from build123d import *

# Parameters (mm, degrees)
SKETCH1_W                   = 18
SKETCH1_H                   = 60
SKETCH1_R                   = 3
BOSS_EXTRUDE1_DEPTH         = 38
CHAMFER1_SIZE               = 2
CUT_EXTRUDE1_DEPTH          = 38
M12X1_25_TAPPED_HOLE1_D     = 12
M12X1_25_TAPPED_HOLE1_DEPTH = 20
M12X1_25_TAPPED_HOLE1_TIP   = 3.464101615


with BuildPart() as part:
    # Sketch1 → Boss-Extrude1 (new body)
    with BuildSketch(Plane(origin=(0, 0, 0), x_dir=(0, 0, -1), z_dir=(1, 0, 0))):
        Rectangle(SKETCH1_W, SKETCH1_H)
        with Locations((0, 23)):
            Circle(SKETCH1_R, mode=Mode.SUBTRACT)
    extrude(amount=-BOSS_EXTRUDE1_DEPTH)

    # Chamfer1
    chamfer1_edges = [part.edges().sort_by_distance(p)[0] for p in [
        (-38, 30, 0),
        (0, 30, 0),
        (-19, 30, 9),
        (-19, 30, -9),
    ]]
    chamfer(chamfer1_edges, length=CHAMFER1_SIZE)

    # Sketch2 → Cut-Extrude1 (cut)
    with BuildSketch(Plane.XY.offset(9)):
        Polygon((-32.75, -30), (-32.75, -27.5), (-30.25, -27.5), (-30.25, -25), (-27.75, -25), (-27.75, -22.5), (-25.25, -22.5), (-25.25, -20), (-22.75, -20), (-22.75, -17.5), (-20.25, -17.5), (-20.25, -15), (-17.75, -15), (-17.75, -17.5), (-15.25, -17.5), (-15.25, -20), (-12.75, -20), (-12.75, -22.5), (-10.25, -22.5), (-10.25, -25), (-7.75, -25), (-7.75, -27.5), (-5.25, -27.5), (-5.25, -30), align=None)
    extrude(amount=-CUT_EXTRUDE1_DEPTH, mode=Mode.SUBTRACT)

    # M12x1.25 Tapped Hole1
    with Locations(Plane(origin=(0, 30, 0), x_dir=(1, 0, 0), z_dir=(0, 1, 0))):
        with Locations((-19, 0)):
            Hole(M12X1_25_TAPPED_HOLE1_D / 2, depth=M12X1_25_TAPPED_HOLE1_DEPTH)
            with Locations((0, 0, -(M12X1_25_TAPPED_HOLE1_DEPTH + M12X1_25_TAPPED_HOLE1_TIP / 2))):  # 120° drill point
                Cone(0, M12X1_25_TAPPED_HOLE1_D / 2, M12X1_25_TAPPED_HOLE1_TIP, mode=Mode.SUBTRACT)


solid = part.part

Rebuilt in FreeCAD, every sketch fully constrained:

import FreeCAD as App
import Part
import Sketcher
from FreeCAD import Vector


def edges_at(feature, points):
    """Names of the edges that pass closest to the given points."""
    edges = feature.Shape.Edges
    near = lambda p: min(range(len(edges)), key=lambda i: edges[i].distToShape(Part.Vertex(*p))[0])
    return sorted({f"Edge{near(p) + 1}" for p in points})

doc = App.newDocument("Part")
body = doc.addObject("PartDesign::Body", "Body")

# Sketch on YZ plane
sketch1 = body.newObject("Sketcher::SketchObject", "Sketch")
sketch1.AttachmentSupport = (doc.getObject("YZ_Plane"), [""])
sketch1.MapMode = "FlatFace"
sketch1.addGeometry([
    Part.LineSegment(Vector(30, 9, 0), Vector(-30, 9, 0)),  # 0
    Part.LineSegment(Vector(-30, 9, 0), Vector(-30, -9, 0)),  # 1
    Part.LineSegment(Vector(-30, -9, 0), Vector(30, -9, 0)),  # 2
    Part.LineSegment(Vector(30, -9, 0), Vector(30, 9, 0)),  # 3
    Part.Circle(Vector(23, 0, 0), Vector(0, 0, 1), 3),  # 4
], False)
sketch1.addConstraint([
    Sketcher.Constraint("Coincident", 0, 2, 1, 1),
    Sketcher.Constraint("Coincident", 1, 2, 2, 1),
    Sketcher.Constraint("Coincident", 2, 2, 3, 1),
    Sketcher.Constraint("Coincident", 3, 2, 0, 1),
    Sketcher.Constraint("Horizontal", 0),
    Sketcher.Constraint("Vertical", 1),
    Sketcher.Constraint("Horizontal", 2),
    Sketcher.Constraint("Vertical", 3),
    Sketcher.Constraint("Symmetric", 0, 2, 2, 2, -1, 1),
    Sketcher.Constraint("PointOnObject", 4, 3, -1),
    Sketcher.Constraint("Diameter", 4, 6.0),
    Sketcher.Constraint("DistanceX", 0, 2, 0, 1, 60.0),
    Sketcher.Constraint("DistanceY", 1, 2, 1, 1, 18.0),
    Sketcher.Constraint("DistanceX", -1, 1, 4, 3, 23.0),
])
pad1 = body.newObject("PartDesign::Pad", "Pad")
pad1.Profile = sketch1
pad1.Length = 38
pad1.Reversed = True
doc.recompute()

chamfer = body.newObject("PartDesign::Chamfer", "Chamfer")
chamfer.Base = (pad1, edges_at(pad1, [
    (-38, 30, 0),
    (0, 30, 0),
    (-19, 30, 9),
    (-19, 30, -9),
]))
chamfer.Size = 2

# Sketch on XY plane
sketch2 = body.newObject("Sketcher::SketchObject", "Sketch001")
sketch2.AttachmentSupport = (doc.getObject("XY_Plane"), [""])
sketch2.MapMode = "FlatFace"
sketch2.AttachmentOffset = App.Placement(Vector(0, 0, 9), App.Rotation())
sketch2.addGeometry([
    Part.LineSegment(Vector(-32.8, -27.5, 0), Vector(-32.8, -30, 0)),  # 0
    Part.LineSegment(Vector(-32.8, -30, 0), Vector(-5.2, -30, 0)),  # 1
    Part.LineSegment(Vector(-5.2, -30, 0), Vector(-5.2, -27.5, 0)),  # 2
    Part.LineSegment(Vector(-5.2, -27.5, 0), Vector(-7.8, -27.5, 0)),  # 3
    Part.LineSegment(Vector(-7.8, -27.5, 0), Vector(-7.8, -25, 0)),  # 4
    Part.LineSegment(Vector(-7.8, -25, 0), Vector(-10.2, -25, 0)),  # 5
    Part.LineSegment(Vector(-10.2, -25, 0), Vector(-10.2, -22.5, 0)),  # 6
    Part.LineSegment(Vector(-10.2, -22.5, 0), Vector(-12.8, -22.5, 0)),  # 7
    Part.LineSegment(Vector(-12.8, -22.5, 0), Vector(-12.8, -20, 0)),  # 8
    Part.LineSegment(Vector(-12.8, -20, 0), Vector(-15.2, -20, 0)),  # 9
    Part.LineSegment(Vector(-15.2, -20, 0), Vector(-15.2, -17.5, 0)),  # 10
    Part.LineSegment(Vector(-15.2, -17.5, 0), Vector(-17.8, -17.5, 0)),  # 11
    Part.LineSegment(Vector(-17.8, -17.5, 0), Vector(-17.8, -15, 0)),  # 12
    Part.LineSegment(Vector(-17.8, -15, 0), Vector(-20.2, -15, 0)),  # 13
    Part.LineSegment(Vector(-20.2, -15, 0), Vector(-20.2, -17.5, 0)),  # 14
    Part.LineSegment(Vector(-20.2, -17.5, 0), Vector(-22.8, -17.5, 0)),  # 15
    Part.LineSegment(Vector(-22.8, -17.5, 0), Vector(-22.8, -20, 0)),  # 16
    Part.LineSegment(Vector(-22.8, -20, 0), Vector(-25.2, -20, 0)),  # 17
    Part.LineSegment(Vector(-25.2, -20, 0), Vector(-25.2, -22.5, 0)),  # 18
    Part.LineSegment(Vector(-25.2, -22.5, 0), Vector(-27.8, -22.5, 0)),  # 19
    Part.LineSegment(Vector(-27.8, -22.5, 0), Vector(-27.8, -25, 0)),  # 20
    Part.LineSegment(Vector(-27.8, -25, 0), Vector(-30.2, -25, 0)),  # 21
    Part.LineSegment(Vector(-30.2, -25, 0), Vector(-30.2, -27.5, 0)),  # 22
    Part.LineSegment(Vector(-30.2, -27.5, 0), Vector(-32.8, -27.5, 0)),  # 23
], False)
sketch2.addConstraint([
    Sketcher.Constraint("Coincident", 0, 2, 1, 1),
    Sketcher.Constraint("Coincident", 1, 2, 2, 1),
    Sketcher.Constraint("Coincident", 2, 2, 3, 1),
    Sketcher.Constraint("Coincident", 3, 2, 4, 1),
    Sketcher.Constraint("Coincident", 4, 2, 5, 1),
    Sketcher.Constraint("Coincident", 5, 2, 6, 1),
    Sketcher.Constraint("Coincident", 6, 2, 7, 1),
    Sketcher.Constraint("Coincident", 7, 2, 8, 1),
    Sketcher.Constraint("Coincident", 8, 2, 9, 1),
    Sketcher.Constraint("Coincident", 9, 2, 10, 1),
    Sketcher.Constraint("Coincident", 10, 2, 11, 1),
    Sketcher.Constraint("Coincident", 11, 2, 12, 1),
    Sketcher.Constraint("Coincident", 12, 2, 13, 1),
    Sketcher.Constraint("Coincident", 13, 2, 14, 1),
    Sketcher.Constraint("Coincident", 14, 2, 15, 1),
    Sketcher.Constraint("Coincident", 15, 2, 16, 1),
    Sketcher.Constraint("Coincident", 16, 2, 17, 1),
    Sketcher.Constraint("Coincident", 17, 2, 18, 1),
    Sketcher.Constraint("Coincident", 18, 2, 19, 1),
    Sketcher.Constraint("Coincident", 19, 2, 20, 1),
    Sketcher.Constraint("Coincident", 20, 2, 21, 1),
    Sketcher.Constraint("Coincident", 21, 2, 22, 1),
    Sketcher.Constraint("Coincident", 22, 2, 23, 1),
    Sketcher.Constraint("Coincident", 23, 2, 0, 1),
    Sketcher.Constraint("Vertical", 0),
    Sketcher.Constraint("Horizontal", 1),
    Sketcher.Constraint("Vertical", 2),
    Sketcher.Constraint("Horizontal", 3),
    Sketcher.Constraint("Vertical", 4),
    Sketcher.Constraint("Horizontal", 5),
    Sketcher.Constraint("Vertical", 6),
    Sketcher.Constraint("Horizontal", 7),
    Sketcher.Constraint("Vertical", 8),
    Sketcher.Constraint("Horizontal", 9),
    Sketcher.Constraint("Vertical", 10),
    Sketcher.Constraint("Horizontal", 11),
    Sketcher.Constraint("Vertical", 12),
    Sketcher.Constraint("Horizontal", 13),
    Sketcher.Constraint("Vertical", 14),
    Sketcher.Constraint("Horizontal", 15),
    Sketcher.Constraint("Vertical", 16),
    Sketcher.Constraint("Horizontal", 17),
    Sketcher.Constraint("Vertical", 18),
    Sketcher.Constraint("Horizontal", 19),
    Sketcher.Constraint("Vertical", 20),
    Sketcher.Constraint("Horizontal", 21),
    Sketcher.Constraint("Vertical", 22),
    Sketcher.Constraint("Horizontal", 23),
    Sketcher.Constraint("Horizontal", 11, 2, 14, 2),
    Sketcher.Constraint("Horizontal", 9, 2, 16, 2),
    Sketcher.Constraint("Horizontal", 7, 2, 18, 2),
    Sketcher.Constraint("Horizontal", 5, 2, 20, 2),
    Sketcher.Constraint("Horizontal", 3, 2, 22, 2),
    Sketcher.Constraint("Equal", 3, 5),
    Sketcher.Constraint("Equal", 5, 7),
    Sketcher.Constraint("Equal", 7, 9),
    Sketcher.Constraint("Equal", 9, 11),
    Sketcher.Constraint("Equal", 11, 13),
    Sketcher.Constraint("Equal", 13, 15),
    Sketcher.Constraint("Equal", 15, 17),
    Sketcher.Constraint("Equal", 17, 19),
    Sketcher.Constraint("Equal", 19, 21),
    Sketcher.Constraint("Equal", 21, 23),
    Sketcher.Constraint("Equal", 23, 0),
    Sketcher.Constraint("Equal", 2, 4),
    Sketcher.Constraint("Equal", 4, 6),
    Sketcher.Constraint("Equal", 6, 8),
    Sketcher.Constraint("Equal", 8, 10),
    Sketcher.Constraint("Equal", 10, 12),
    Sketcher.Constraint("DistanceX", 1, 1, 1, 2, 27.5),
    Sketcher.Constraint("DistanceY", 0, 2, -1, 1, 30.0),
    Sketcher.Constraint("DistanceX", 0, 2, -1, 1, 32.75),
])
pocket1 = body.newObject("PartDesign::Pocket", "Pocket")
pocket1.Profile = sketch2
pocket1.Length = 38

# Sketch on XZ plane
sketch3 = body.newObject("Sketcher::SketchObject", "Sketch002")
sketch3.AttachmentSupport = (doc.getObject("XZ_Plane"), [""])
sketch3.MapMode = "FlatFace"
sketch3.AttachmentOffset = App.Placement(Vector(0, 0, -30), App.Rotation())
sketch3.addGeometry(Part.Circle(Vector(-19, 0, 0), Vector(0, 0, 1), 6), False)
sketch3.addConstraint([
    Sketcher.Constraint("PointOnObject", 0, 3, -1),
    Sketcher.Constraint("Diameter", 0, 12.0),
    Sketcher.Constraint("DistanceX", 0, 3, -1, 1, 19.0),
])
doc.recompute()
hole = body.newObject("PartDesign::Hole", "Hole")
hole.Profile = sketch3
hole.ThreadType = "None"
hole.Diameter = 12
hole.DepthType = "Dimension"
hole.Depth = 20
hole.DrillPoint = "Angled"
hole.DrillPointAngle = 120
hole.Reversed = True

doc.recompute()
